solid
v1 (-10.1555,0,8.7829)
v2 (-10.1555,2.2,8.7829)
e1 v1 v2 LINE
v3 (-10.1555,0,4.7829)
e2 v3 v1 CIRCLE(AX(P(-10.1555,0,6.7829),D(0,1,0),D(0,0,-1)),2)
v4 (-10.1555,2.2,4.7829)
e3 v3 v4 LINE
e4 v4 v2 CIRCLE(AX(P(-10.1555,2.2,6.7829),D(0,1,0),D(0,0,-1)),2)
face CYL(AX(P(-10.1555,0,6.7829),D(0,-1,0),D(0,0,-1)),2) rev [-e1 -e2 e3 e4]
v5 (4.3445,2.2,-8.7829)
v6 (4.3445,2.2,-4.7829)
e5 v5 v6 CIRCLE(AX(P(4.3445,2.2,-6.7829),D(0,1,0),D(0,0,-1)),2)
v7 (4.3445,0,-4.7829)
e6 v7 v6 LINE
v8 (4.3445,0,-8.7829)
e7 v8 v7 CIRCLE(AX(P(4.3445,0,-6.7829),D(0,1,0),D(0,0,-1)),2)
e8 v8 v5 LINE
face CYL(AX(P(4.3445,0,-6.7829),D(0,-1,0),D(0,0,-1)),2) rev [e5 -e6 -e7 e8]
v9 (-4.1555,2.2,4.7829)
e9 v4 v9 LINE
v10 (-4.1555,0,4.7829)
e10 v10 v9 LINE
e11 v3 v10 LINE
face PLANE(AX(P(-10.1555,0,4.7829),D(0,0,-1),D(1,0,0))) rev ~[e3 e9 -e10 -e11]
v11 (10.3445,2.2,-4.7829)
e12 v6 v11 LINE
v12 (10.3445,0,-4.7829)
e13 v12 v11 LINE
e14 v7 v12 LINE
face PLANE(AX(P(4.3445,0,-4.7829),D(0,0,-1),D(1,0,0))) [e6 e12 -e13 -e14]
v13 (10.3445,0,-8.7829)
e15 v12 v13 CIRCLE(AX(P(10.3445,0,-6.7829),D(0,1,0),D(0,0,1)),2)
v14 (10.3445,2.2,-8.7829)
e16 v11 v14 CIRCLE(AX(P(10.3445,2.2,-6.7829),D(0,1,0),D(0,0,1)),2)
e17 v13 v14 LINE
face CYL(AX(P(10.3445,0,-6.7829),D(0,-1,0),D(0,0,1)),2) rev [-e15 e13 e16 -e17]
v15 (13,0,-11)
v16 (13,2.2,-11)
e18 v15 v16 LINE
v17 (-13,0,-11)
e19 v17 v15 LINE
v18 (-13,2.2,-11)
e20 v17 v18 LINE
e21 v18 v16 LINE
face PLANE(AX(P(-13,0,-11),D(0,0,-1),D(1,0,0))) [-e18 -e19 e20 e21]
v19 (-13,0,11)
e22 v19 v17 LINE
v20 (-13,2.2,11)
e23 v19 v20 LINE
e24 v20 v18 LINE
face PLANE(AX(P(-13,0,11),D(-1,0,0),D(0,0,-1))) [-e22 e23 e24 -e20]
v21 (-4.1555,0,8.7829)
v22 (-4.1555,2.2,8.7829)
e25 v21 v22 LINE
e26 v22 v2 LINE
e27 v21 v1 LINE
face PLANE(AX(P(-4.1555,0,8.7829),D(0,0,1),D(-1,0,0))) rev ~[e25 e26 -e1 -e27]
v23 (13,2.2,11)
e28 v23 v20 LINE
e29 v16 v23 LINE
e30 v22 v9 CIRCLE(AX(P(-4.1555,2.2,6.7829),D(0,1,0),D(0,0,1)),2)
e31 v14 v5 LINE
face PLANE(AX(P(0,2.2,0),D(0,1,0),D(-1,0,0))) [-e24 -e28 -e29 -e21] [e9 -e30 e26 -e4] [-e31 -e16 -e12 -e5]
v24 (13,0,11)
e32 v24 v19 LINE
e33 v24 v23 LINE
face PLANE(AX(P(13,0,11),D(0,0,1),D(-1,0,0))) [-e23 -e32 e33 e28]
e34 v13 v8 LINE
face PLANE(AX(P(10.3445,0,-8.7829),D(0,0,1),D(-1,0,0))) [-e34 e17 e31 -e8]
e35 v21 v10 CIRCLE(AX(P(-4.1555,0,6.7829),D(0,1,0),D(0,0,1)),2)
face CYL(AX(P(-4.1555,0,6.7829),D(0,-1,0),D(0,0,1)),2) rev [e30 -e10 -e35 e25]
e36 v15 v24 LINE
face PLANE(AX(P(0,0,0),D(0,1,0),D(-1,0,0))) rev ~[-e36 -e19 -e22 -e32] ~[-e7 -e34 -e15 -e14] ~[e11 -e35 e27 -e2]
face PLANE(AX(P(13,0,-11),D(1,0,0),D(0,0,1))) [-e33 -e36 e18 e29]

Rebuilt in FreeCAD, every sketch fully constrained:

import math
import FreeCAD as App
import Part
import Sketcher


def add_polygon(sketch, points):
    """Adds a closed chain of lines whose ends are joined by coincident constraints."""
    first, n = sketch.GeometryCount, len(points)
    for a, b in zip(points, points[1:] + points[:1]):
        sketch.addGeometry(Part.LineSegment(App.Vector(*a, 0), App.Vector(*b, 0)), False)
    for i in range(n):
        sketch.addConstraint(Sketcher.Constraint("Coincident", first + i, 2, first + (i + 1) % n, 1))

doc = App.newDocument("Part")
body = doc.addObject("PartDesign::Body", "Body")

# Sketch on XZ plane
sketch1 = doc.addObject("Sketcher::SketchObject", "Sketch")
body.addObject(sketch1)
sketch1.AttachmentSupport = (doc.XZ_Plane, [""])
sketch1.MapMode = "FlatFace"
add_polygon(sketch1, [(-13, 11), (13, 11), (13, -11), (-13, -11)])  # lines 0-3
sketch1.addGeometry(Part.LineSegment(App.Vector(10.3, -4.8, 0), App.Vector(4.3, -4.8, 0)), False)  # 4
sketch1.addGeometry(Part.ArcOfCircle(Part.Circle(App.Vector(4.3, -6.8, 0), App.Vector(0, 0, 1), 2), math.radians(90), math.radians(270)), False)  # 5
sketch1.addGeometry(Part.LineSegment(App.Vector(4.3, -8.8, 0), App.Vector(10.3, -8.8, 0)), False)  # 6
sketch1.addGeometry(Part.ArcOfCircle(Part.Circle(App.Vector(10.3, -6.8, 0), App.Vector(0, 0, 1), 2), math.radians(-90), math.radians(90)), False)  # 7
sketch1.addGeometry(Part.ArcOfCircle(Part.Circle(App.Vector(-10.2, 6.8, 0), App.Vector(0, 0, 1), 2), math.radians(90), math.radians(270)), False)  # 8
sketch1.addGeometry(Part.LineSegment(App.Vector(-10.2, 4.8, 0), App.Vector(-4.2, 4.8, 0)), False)  # 9
sketch1.addGeometry(Part.ArcOfCircle(Part.Circle(App.Vector(-4.2, 6.8, 0), App.Vector(0, 0, 1), 2), math.radians(-90), math.radians(90)), False)  # 10
sketch1.addGeometry(Part.LineSegment(App.Vector(-4.2, 8.8, 0), App.Vector(-10.2, 8.8, 0)), False)  # 11
sketch1.addConstraint([
    Sketcher.Constraint("Tangent", 4, 2, 5, 1),
    Sketcher.Constraint("Tangent", 5, 2, 6, 1),
    Sketcher.Constraint("Tangent", 6, 2, 7, 1),
    Sketcher.Constraint("Tangent", 7, 2, 4, 1),
    Sketcher.Constraint("Tangent", 8, 2, 9, 1),
    Sketcher.Constraint("Tangent", 9, 2, 10, 1),
    Sketcher.Constraint("Tangent", 10, 2, 11, 1),
    Sketcher.Constraint("Tangent", 11, 2, 8, 1),
    Sketcher.Constraint("Horizontal", 0),
    Sketcher.Constraint("Vertical", 1),
    Sketcher.Constraint("Horizontal", 2),
    Sketcher.Constraint("Vertical", 3),
    Sketcher.Constraint("Horizontal", 4),
    Sketcher.Constraint("Horizontal", 6),
    Sketcher.Constraint("Horizontal", 9),
    Sketcher.Constraint("Horizontal", 11),
    Sketcher.Constraint("Equal", 7, 8),
    Sketcher.Constraint("Symmetric", 0, 2, 2, 2, -1, 1),
    Sketcher.Constraint("Equal", 6, 9),
    Sketcher.Constraint("Radius", 5, 2.0),
    Sketcher.Constraint("DistanceX", 0, 1, 0, 2, 26.0),
    Sketcher.Constraint("DistanceX", 4, 2, 4, 1, 6.0),
    Sketcher.Constraint("DistanceY", 1, 2, 1, 1, 22.0),
    Sketcher.Constraint("DistanceX", 8, 3, 5, 3, 14.5),
    Sketcher.Constraint("DistanceY", 5, 3, -1, 1, 6.783),
    Sketcher.Constraint("DistanceY", -1, 1, 8, 3, 6.783),
    Sketcher.Constraint("DistanceX", -1, 1, 5, 3, 4.3445),
])
pad1 = doc.addObject("PartDesign::Pad", "Pad")
body.addObject(pad1)
pad1.Profile = sketch1
pad1.Length = 2.2
pad1.Reversed = True

doc.recompute()
